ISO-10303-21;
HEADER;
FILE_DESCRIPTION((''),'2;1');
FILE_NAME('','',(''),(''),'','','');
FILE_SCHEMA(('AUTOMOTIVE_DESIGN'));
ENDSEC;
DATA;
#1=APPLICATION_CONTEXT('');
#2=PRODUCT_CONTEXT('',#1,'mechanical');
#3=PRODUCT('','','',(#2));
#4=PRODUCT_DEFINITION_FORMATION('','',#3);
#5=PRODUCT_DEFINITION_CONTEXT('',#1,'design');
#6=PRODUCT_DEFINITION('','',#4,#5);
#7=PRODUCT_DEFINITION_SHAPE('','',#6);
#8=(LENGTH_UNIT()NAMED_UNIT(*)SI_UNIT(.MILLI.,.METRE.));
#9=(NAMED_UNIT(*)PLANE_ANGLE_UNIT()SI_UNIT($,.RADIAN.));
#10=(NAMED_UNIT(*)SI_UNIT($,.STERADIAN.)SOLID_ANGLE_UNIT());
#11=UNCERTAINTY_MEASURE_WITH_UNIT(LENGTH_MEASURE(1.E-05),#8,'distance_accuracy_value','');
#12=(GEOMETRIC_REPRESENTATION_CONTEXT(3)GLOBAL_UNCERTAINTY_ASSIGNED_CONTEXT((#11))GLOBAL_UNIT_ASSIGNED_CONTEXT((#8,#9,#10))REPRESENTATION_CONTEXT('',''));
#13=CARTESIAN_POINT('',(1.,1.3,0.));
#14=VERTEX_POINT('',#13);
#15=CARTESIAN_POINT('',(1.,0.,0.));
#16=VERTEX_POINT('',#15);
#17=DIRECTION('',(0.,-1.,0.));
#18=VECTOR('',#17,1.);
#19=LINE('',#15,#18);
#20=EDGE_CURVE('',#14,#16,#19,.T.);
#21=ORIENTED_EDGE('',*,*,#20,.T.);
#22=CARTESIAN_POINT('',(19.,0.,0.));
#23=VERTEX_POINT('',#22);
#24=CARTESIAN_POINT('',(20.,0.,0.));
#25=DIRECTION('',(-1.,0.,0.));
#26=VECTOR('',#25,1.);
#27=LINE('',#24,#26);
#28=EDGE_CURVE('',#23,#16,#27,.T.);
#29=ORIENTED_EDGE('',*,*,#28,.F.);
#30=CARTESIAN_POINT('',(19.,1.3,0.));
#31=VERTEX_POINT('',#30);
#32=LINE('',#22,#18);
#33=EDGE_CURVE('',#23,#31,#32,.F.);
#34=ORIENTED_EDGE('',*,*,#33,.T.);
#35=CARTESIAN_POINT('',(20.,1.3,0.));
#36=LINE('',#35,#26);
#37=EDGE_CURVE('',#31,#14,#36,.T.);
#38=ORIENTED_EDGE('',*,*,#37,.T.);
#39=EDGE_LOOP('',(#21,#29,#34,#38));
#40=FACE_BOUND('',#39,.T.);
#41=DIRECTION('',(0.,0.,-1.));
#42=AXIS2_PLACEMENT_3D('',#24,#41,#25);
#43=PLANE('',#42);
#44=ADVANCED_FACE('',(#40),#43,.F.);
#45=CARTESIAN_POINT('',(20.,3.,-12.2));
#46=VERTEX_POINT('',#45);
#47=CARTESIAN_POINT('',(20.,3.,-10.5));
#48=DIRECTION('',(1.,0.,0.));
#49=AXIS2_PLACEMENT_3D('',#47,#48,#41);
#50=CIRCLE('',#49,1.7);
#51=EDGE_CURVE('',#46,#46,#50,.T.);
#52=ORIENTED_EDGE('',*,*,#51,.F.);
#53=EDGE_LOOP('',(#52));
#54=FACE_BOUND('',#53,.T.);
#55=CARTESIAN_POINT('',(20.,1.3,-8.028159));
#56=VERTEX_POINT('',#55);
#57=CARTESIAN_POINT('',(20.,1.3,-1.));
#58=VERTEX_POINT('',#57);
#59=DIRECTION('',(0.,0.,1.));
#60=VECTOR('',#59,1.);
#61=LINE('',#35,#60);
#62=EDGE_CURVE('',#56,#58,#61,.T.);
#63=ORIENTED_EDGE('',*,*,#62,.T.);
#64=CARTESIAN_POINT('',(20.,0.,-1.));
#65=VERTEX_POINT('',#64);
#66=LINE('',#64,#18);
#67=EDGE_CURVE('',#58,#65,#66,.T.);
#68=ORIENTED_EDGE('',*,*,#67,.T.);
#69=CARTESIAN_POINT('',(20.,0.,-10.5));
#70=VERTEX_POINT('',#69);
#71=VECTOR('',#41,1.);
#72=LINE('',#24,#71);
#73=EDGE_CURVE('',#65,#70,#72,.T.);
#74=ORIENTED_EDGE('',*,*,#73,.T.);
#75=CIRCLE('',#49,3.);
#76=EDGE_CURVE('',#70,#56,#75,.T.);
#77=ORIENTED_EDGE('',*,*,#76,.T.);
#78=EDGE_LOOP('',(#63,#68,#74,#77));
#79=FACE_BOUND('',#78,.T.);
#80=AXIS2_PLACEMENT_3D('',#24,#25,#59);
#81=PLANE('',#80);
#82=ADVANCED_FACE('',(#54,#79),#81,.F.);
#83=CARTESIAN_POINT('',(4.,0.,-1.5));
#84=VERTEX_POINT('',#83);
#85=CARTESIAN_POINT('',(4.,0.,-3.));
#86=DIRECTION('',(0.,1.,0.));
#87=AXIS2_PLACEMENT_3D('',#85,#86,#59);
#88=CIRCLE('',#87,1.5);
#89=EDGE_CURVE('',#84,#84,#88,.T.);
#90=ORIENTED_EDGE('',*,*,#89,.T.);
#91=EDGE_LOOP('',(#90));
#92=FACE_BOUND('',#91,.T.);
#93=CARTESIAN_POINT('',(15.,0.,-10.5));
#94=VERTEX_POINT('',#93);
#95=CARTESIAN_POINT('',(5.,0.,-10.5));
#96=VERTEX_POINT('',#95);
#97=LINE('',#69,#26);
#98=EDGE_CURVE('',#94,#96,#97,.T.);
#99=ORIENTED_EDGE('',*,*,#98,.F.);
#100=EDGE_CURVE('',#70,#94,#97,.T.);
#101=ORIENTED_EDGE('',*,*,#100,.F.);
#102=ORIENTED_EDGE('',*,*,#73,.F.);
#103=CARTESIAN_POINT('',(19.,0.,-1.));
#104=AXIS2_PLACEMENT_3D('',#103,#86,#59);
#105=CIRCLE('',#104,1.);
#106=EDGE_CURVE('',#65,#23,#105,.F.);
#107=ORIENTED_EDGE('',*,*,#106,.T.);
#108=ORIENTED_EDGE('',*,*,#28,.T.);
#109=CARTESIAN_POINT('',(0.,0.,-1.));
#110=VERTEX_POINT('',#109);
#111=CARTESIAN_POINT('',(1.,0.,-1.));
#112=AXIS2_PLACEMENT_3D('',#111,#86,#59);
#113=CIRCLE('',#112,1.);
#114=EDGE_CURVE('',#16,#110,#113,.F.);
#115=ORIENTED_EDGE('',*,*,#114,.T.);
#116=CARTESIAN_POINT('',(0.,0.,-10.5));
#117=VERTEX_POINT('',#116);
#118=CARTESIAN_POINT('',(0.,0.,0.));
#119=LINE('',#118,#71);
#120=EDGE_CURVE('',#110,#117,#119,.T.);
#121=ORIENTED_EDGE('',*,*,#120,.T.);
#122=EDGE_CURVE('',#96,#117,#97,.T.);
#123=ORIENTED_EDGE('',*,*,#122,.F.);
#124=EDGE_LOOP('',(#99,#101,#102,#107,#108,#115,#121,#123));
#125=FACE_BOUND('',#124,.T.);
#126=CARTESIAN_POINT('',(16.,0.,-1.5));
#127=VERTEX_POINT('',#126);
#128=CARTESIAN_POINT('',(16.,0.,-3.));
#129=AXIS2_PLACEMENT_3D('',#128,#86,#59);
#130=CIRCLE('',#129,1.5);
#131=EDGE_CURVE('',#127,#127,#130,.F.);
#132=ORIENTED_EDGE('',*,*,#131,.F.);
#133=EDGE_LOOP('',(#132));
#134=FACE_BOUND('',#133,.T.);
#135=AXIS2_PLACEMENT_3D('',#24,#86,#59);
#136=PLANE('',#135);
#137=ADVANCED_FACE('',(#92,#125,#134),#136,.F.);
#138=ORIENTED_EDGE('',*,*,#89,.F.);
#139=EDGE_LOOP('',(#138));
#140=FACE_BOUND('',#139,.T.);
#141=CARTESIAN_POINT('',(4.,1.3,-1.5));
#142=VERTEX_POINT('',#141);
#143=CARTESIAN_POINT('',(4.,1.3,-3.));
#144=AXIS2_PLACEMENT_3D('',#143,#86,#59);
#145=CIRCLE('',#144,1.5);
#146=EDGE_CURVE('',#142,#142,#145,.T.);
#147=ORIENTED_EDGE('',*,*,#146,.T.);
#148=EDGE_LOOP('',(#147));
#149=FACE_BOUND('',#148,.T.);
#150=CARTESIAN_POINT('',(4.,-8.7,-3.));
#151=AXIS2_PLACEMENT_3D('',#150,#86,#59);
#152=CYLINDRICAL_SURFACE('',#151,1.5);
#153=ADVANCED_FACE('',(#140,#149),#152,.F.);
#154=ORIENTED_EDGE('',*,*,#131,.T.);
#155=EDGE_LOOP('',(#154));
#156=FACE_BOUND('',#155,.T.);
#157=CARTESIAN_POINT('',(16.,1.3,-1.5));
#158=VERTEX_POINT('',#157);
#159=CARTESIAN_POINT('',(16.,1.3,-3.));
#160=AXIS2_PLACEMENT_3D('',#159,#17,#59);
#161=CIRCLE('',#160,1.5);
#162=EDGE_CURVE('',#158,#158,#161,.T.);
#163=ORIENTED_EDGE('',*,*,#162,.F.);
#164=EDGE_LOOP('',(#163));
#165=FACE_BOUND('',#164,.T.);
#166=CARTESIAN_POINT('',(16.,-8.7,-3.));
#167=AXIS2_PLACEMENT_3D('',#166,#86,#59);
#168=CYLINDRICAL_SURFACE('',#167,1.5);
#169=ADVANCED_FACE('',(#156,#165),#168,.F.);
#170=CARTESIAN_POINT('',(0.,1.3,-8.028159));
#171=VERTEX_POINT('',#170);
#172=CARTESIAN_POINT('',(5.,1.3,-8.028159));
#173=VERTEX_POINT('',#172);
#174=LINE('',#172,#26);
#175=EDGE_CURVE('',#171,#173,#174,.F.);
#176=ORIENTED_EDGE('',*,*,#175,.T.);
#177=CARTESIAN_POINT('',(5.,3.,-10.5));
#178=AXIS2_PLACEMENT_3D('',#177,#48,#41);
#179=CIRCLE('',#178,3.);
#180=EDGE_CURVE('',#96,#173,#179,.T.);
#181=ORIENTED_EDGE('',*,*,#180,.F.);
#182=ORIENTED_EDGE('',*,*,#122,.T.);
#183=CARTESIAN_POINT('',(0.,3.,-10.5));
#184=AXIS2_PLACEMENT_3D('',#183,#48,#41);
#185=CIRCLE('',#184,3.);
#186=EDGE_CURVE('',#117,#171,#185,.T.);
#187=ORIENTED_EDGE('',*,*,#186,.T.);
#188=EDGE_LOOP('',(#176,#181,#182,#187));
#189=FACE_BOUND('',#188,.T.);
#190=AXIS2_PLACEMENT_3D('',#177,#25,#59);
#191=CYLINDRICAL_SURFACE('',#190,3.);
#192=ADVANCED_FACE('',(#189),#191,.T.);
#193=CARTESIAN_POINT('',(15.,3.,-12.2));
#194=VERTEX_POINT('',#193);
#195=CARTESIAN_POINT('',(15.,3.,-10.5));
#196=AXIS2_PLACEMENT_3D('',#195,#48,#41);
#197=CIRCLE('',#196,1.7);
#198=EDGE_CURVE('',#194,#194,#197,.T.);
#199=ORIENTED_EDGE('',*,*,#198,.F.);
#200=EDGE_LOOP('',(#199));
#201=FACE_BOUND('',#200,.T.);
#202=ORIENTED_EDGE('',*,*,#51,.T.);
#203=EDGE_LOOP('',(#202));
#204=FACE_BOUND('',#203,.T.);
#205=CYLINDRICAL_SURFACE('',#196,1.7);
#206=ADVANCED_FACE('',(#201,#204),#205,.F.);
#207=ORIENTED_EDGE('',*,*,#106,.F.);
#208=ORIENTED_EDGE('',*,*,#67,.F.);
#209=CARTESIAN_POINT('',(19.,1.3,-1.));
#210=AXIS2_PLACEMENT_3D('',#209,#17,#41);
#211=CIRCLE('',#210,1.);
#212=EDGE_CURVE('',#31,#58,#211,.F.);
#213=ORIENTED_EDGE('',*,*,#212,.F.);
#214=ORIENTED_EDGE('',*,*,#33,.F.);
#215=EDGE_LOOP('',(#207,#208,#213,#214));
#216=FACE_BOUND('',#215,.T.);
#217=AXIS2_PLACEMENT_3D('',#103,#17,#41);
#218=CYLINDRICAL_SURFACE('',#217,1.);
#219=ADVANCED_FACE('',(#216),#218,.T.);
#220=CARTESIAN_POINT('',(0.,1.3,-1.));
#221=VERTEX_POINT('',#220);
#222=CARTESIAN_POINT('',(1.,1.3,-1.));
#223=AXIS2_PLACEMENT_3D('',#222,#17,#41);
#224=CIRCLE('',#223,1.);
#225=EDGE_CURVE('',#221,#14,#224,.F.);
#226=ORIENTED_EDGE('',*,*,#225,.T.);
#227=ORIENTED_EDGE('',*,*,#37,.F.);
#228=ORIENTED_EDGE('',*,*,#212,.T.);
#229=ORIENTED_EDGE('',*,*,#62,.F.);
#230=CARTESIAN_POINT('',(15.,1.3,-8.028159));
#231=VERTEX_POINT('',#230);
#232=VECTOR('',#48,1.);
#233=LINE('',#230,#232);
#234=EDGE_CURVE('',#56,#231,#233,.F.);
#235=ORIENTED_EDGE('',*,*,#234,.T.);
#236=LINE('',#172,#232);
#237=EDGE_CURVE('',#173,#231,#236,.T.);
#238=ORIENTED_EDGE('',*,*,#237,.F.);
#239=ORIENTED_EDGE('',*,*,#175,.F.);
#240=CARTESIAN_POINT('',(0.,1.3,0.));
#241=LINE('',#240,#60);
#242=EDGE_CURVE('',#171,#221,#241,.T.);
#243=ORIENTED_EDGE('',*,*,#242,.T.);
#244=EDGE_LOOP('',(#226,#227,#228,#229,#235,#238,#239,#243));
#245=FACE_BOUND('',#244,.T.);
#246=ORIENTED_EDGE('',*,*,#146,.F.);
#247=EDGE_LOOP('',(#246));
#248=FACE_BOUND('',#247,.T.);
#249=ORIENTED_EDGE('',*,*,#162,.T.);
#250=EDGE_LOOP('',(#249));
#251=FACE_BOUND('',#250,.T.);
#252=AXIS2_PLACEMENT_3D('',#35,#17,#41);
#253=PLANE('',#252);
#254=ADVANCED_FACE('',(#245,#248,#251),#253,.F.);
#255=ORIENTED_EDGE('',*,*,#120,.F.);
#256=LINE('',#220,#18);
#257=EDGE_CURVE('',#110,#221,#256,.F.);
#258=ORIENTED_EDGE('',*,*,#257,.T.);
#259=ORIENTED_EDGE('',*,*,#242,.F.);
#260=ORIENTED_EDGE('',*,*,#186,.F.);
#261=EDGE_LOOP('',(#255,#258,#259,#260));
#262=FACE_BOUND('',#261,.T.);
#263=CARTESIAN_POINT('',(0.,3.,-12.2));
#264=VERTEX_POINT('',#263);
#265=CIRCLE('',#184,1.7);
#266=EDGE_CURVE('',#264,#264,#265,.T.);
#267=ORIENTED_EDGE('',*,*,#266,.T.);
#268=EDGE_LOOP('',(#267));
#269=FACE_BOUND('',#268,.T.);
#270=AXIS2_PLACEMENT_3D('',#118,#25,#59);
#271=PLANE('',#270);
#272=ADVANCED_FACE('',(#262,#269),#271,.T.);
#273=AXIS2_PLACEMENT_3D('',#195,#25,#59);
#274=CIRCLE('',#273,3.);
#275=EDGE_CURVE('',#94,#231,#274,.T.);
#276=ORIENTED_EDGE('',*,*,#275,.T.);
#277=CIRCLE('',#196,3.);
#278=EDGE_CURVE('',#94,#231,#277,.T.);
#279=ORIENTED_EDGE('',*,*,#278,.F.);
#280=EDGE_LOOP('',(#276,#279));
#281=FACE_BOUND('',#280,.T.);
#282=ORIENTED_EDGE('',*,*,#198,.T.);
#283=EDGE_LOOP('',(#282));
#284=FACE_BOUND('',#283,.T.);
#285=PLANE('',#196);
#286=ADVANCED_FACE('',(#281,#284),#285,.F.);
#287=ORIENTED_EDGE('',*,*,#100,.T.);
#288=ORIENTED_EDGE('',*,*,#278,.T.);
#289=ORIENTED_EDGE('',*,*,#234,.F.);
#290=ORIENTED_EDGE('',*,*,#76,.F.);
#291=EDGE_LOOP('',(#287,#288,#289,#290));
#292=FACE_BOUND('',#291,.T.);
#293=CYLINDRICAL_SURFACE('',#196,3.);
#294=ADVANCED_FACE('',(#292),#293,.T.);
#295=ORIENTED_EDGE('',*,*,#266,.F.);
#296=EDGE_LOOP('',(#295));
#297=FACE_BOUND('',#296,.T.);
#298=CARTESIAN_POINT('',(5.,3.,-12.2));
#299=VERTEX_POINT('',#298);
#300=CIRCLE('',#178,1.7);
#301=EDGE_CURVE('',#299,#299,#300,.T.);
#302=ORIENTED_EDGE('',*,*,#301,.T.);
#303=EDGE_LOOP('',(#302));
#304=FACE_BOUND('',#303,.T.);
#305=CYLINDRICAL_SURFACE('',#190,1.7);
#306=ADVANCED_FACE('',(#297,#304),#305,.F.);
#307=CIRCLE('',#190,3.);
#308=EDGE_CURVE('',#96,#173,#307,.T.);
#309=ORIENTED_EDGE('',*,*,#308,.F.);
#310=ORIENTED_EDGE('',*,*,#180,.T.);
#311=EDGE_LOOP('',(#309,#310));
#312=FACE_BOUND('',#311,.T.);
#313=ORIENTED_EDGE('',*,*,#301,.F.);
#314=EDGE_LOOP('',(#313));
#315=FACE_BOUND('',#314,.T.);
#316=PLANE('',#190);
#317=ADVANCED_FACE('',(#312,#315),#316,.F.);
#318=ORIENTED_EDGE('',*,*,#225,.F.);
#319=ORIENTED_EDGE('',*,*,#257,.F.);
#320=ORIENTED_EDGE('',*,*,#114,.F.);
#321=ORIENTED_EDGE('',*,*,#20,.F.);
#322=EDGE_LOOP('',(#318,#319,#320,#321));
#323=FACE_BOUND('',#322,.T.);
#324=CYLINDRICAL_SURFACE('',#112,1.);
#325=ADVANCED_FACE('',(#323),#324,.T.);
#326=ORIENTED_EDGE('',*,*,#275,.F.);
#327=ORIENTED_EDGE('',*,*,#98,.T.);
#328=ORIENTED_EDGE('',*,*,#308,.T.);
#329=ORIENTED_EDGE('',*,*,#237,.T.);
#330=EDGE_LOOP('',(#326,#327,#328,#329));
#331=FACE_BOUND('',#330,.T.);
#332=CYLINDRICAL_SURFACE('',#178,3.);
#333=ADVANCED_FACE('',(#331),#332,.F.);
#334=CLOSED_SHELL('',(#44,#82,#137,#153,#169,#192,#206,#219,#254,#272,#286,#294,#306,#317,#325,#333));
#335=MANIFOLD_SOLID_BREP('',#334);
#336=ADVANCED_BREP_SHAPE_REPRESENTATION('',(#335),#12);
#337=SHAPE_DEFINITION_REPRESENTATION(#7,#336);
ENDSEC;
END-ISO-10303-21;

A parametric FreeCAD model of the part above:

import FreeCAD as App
import Part
import Sketcher


def edges_at(feature, points):
    """Names of the edges that pass closest to the given points."""
    edges = feature.Shape.Edges
    near = lambda p: min(range(len(edges)), key=lambda i: edges[i].distToShape(Part.Vertex(*p))[0])
    return sorted({f"Edge{near(p) + 1}" for p in points})


def add_polygon(sketch, points):
    """Adds a closed chain of lines whose ends are joined by coincident constraints."""
    first, n = sketch.GeometryCount, len(points)
    for a, b in zip(points, points[1:] + points[:1]):
        sketch.addGeometry(Part.LineSegment(App.Vector(*a, 0), App.Vector(*b, 0)), False)
    for i in range(n):
        sketch.addConstraint(Sketcher.Constraint("Coincident", first + i, 2, first + (i + 1) % n, 1))

doc = App.newDocument("Part")
body = doc.addObject("PartDesign::Body", "Body")

# Sketch on YZ plane
sketch1 = body.newObject("Sketcher::SketchObject", "Sketch")
sketch1.AttachmentSupport = (doc.getObject("YZ_Plane"), [""])
sketch1.MapMode = "FlatFace"
add_polygon(sketch1, [(1.3, 0), (0, 0), (0, -10.5), (1.3, -10.5)])  # lines 0-3
sketch1.addConstraint(Sketcher.Constraint("Horizontal", 0))
sketch1.addConstraint(Sketcher.Constraint("Vertical", 1))
sketch1.addConstraint(Sketcher.Constraint("Horizontal", 2))
sketch1.addConstraint(Sketcher.Constraint("Vertical", 3))
sketch1.addConstraint(Sketcher.Constraint("Coincident", 0, 2, -1, 1))
sketch1.addConstraint(Sketcher.Constraint("DistanceX", 0, 2, 0, 1, 1.3))
sketch1.addConstraint(Sketcher.Constraint("DistanceY", 1, 2, 1, 1, 10.5))
pad1 = body.newObject("PartDesign::Pad", "Pad")
pad1.Profile = sketch1
pad1.Length = 20

# Sketch on YZ plane
sketch2 = body.newObject("Sketcher::SketchObject", "Sketch001")
sketch2.AttachmentSupport = (doc.getObject("YZ_Plane"), [""])
sketch2.MapMode = "FlatFace"
sketch2.AttachmentOffset = App.Placement(App.Vector(0, 0, 20), App.Rotation())
sketch2.addGeometry(Part.Circle(App.Vector(3, -10.5, 0), App.Vector(0, 0, 1), 3), False)
sketch2.addGeometry(Part.Circle(App.Vector(3, -10.5, 0), App.Vector(0, 0, 1), 1.7), False)
sketch2.addConstraint(Sketcher.Constraint("Coincident", 1, 3, 0, 3))
sketch2.addConstraint(Sketcher.Constraint("Diameter", 0, 6.0))
sketch2.addConstraint(Sketcher.Constraint("Diameter", 1, 3.4))
sketch2.addConstraint(Sketcher.Constraint("DistanceX", -1, 1, 0, 3, 3.0))
sketch2.addConstraint(Sketcher.Constraint("DistanceY", 0, 3, -1, 1, 10.5))
pad2 = body.newObject("PartDesign::Pad", "Pad001")
pad2.Profile = sketch2
pad2.Length = 5
pad2.Reversed = True

# Sketch on YZ plane
sketch3 = body.newObject("Sketcher::SketchObject", "Sketch002")
sketch3.AttachmentSupport = (doc.getObject("YZ_Plane"), [""])
sketch3.MapMode = "FlatFace"
sketch3.AttachmentOffset = App.Placement(App.Vector(0, 0, 15), App.Rotation())
sketch3.addGeometry(Part.Circle(App.Vector(3, -10.5, 0), App.Vector(0, 0, 1), 3), False)
sketch3.addConstraint(Sketcher.Constraint("Diameter", 0, 6.0))
sketch3.addConstraint(Sketcher.Constraint("DistanceX", -1, 1, 0, 3, 3.0))
sketch3.addConstraint(Sketcher.Constraint("DistanceY", 0, 3, -1, 1, 10.5))
pocket1 = body.newObject("PartDesign::Pocket", "Pocket")
pocket1.Profile = sketch3
pocket1.Length = 10
doc.recompute()

datumplane = body.newObject("PartDesign::Plane", "DatumPlane")
datumplane.AttachmentSupport = (doc.getObject("YZ_Plane"), [""])
datumplane.MapMode = "FlatFace"
datumplane.AttachmentOffset = App.Placement(App.Vector(0, 0, 10), App.Rotation())
mirrored = body.newObject("PartDesign::Mirrored", "Mirrored")
mirrored.Originals = [pad2]
mirrored.MirrorPlane = (datumplane, [""])
body.Tip = mirrored

# Sketch on XZ plane
sketch4 = body.newObject("Sketcher::SketchObject", "Sketch003")
sketch4.AttachmentSupport = (doc.getObject("XZ_Plane"), [""])
sketch4.MapMode = "FlatFace"
sketch4.AttachmentOffset = App.Placement(App.Vector(0, 0, -1.3), App.Rotation())
sketch4.addGeometry(Part.Circle(App.Vector(4, -3, 0), App.Vector(0, 0, 1), 1.5), False)
sketch4.addConstraint(Sketcher.Constraint("Diameter", 0, 3.0))
sketch4.addConstraint(Sketcher.Constraint("DistanceX", -1, 1, 0, 3, 4.0))
sketch4.addConstraint(Sketcher.Constraint("DistanceY", 0, 3, -1, 1, 3.0))
pocket2 = body.newObject("PartDesign::Pocket", "Pocket001")
pocket2.Profile = sketch4
pocket2.Length = 10
pocket2.Reversed = True
doc.recompute()

datumplane2 = body.newObject("PartDesign::Plane", "DatumPlane001")
datumplane2.AttachmentSupport = (doc.getObject("YZ_Plane"), [""])
datumplane2.MapMode = "FlatFace"
datumplane2.AttachmentOffset = App.Placement(App.Vector(0, 0, 10), App.Rotation())
mirrored2 = body.newObject("PartDesign::Mirrored", "Mirrored001")
mirrored2.Originals = [pocket2]
mirrored2.MirrorPlane = (datumplane2, [""])
body.Tip = mirrored2
doc.recompute()

fillet = body.newObject("PartDesign::Fillet", "Fillet")
fillet.Base = (mirrored2, edges_at(mirrored2, [(20, 0.65, 0), (0, 0.65, 0)]))
fillet.Radius = 1

doc.recompute()
